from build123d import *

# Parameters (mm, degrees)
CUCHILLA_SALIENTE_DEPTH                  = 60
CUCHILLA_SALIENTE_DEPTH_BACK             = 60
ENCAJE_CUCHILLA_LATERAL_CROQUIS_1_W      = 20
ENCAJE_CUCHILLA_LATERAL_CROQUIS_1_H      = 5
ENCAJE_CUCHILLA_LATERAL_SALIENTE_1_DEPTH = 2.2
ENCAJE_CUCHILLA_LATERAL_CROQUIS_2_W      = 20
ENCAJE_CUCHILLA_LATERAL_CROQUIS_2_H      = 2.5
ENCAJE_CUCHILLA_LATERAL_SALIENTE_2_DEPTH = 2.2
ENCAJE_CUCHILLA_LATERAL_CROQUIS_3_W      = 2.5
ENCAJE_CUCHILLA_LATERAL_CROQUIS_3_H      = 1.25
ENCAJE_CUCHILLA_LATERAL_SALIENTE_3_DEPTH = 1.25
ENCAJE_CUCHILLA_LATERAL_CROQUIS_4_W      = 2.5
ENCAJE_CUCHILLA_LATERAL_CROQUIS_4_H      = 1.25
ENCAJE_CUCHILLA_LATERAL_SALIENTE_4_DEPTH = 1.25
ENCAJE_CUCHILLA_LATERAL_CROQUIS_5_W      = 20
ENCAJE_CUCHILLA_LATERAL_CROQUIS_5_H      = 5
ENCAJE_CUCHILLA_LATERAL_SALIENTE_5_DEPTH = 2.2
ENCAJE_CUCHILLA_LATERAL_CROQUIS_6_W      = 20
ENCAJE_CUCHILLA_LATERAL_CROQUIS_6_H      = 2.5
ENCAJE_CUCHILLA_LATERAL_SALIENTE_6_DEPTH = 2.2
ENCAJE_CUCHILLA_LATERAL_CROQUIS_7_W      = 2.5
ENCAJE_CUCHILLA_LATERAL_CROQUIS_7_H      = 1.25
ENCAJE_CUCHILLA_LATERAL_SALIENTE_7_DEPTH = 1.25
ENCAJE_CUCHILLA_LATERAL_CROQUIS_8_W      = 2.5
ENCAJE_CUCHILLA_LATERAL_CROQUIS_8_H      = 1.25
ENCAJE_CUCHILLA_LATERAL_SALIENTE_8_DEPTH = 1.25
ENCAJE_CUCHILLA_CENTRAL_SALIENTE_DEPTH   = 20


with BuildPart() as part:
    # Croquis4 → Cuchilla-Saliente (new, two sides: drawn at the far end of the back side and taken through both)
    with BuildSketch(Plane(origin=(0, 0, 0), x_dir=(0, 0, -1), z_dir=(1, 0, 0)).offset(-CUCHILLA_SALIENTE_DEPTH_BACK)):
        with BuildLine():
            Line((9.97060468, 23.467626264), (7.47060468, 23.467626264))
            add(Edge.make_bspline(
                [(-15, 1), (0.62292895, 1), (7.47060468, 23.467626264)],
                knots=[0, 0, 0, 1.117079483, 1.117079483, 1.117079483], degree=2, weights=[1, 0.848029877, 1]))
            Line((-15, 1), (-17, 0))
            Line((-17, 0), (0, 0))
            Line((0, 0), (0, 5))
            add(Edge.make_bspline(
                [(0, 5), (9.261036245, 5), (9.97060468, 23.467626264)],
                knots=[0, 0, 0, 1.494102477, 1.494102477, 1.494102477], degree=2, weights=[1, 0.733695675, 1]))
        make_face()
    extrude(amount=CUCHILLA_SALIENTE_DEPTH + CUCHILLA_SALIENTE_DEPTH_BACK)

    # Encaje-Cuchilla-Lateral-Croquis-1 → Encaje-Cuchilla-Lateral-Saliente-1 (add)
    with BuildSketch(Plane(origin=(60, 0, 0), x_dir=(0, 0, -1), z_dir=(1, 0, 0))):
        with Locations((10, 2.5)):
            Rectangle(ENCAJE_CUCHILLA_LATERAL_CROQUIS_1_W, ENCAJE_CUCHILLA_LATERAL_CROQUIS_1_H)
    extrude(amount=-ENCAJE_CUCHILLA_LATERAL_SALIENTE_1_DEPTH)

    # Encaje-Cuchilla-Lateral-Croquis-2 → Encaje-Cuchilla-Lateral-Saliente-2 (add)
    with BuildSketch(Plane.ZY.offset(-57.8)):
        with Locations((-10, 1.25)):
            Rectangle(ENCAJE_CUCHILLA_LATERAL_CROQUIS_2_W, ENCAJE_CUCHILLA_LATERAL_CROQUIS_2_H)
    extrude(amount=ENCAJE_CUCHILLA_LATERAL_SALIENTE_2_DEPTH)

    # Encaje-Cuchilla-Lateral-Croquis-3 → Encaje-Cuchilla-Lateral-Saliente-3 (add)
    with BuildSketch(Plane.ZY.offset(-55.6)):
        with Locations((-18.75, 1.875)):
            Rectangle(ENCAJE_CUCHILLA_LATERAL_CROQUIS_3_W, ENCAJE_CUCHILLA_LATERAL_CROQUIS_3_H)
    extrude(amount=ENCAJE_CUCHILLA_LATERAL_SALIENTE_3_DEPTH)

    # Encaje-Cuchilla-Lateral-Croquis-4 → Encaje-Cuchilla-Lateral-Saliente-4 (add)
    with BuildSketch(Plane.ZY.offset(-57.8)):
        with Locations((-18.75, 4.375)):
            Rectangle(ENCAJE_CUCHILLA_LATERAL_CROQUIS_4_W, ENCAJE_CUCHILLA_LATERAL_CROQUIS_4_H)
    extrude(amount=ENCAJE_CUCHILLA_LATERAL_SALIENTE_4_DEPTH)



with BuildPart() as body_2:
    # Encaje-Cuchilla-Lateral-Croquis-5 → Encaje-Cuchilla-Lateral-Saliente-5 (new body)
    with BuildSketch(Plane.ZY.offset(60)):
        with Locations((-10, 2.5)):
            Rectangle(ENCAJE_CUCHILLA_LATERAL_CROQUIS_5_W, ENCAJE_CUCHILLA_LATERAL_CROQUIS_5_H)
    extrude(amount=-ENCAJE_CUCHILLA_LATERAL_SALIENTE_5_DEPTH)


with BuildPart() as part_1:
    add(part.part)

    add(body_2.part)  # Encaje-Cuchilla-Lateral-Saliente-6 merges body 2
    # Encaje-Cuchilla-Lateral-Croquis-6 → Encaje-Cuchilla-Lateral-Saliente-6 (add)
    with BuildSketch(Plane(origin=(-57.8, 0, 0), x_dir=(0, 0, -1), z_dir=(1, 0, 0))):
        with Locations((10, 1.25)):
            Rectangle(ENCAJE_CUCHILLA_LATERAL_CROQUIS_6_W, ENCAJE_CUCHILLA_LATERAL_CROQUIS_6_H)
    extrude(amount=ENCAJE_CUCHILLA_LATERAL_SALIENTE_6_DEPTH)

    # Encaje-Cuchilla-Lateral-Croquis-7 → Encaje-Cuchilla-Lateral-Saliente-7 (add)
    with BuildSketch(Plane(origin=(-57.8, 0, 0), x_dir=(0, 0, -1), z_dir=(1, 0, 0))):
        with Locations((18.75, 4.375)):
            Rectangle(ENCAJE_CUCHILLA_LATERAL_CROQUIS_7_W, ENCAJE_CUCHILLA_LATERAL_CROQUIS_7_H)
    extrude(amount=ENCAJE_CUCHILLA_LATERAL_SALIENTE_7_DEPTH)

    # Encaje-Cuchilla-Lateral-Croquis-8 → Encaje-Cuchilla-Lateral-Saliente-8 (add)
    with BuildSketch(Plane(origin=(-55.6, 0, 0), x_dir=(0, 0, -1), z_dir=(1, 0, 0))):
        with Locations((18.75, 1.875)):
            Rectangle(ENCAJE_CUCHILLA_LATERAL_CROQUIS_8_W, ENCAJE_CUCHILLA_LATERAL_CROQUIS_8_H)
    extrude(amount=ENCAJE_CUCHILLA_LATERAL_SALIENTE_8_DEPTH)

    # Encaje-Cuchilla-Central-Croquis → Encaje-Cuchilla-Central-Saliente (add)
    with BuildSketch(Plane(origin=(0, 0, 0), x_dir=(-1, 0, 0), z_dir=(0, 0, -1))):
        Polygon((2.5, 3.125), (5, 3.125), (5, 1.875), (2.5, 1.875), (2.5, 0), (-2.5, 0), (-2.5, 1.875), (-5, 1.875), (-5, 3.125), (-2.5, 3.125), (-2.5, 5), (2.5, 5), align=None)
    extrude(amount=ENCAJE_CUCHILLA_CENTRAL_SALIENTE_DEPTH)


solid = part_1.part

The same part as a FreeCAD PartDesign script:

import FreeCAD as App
import Part
import Sketcher
from FreeCAD import Vector

doc = App.newDocument("Part")
body = doc.addObject("PartDesign::Body", "Body")

# Sketch on YZ plane
sketch1 = body.newObject("Sketcher::SketchObject", "Sketch")
sketch1.AttachmentSupport = (doc.getObject("YZ_Plane"), [""])
sketch1.MapMode = "FlatFace"
sketch1.addGeometry(Part.LineSegment(Vector(23.467626, -9.970605, 0), Vector(23.467626, -7.470605, 0)), False)
sketch1.addGeometry(Part.BSplineCurve([Vector(1, 15, 0), Vector(1, -0.622929, 0), Vector(23.467626, -7.470605, 0)], [3, 3], [0, 1.117079483], False, 2, [1, 0.848029877, 1], False), False)
sketch1.addGeometry(Part.LineSegment(Vector(1, 15, 0), Vector(0, 17, 0)), False)
sketch1.addGeometry(Part.LineSegment(Vector(0, 17, 0), Vector(0, 0, 0)), False)
sketch1.addGeometry(Part.LineSegment(Vector(0, 0, 0), Vector(5, 0, 0)), False)
sketch1.addGeometry(Part.BSplineCurve([Vector(5, 0, 0), Vector(5, -9.261036, 0), Vector(23.467626, -9.970605, 0)], [3, 3], [0, 1.494102477], False, 2, [1, 0.733695675, 1], False), False)
sketch1.addConstraint(Sketcher.Constraint("Block", 1))
sketch1.addConstraint(Sketcher.Constraint("Block", 5))
sketch1.addConstraint(Sketcher.Constraint("Coincident", 0, 2, 1, 2))
sketch1.addConstraint(Sketcher.Constraint("Coincident", 1, 1, 2, 1))
sketch1.addConstraint(Sketcher.Constraint("Coincident", 2, 2, 3, 1))
sketch1.addConstraint(Sketcher.Constraint("Coincident", 3, 2, 4, 1))
sketch1.addConstraint(Sketcher.Constraint("Coincident", 4, 2, 5, 1))
sketch1.addConstraint(Sketcher.Constraint("Coincident", 5, 2, 0, 1))
sketch1.addConstraint(Sketcher.Constraint("Vertical", 3))
sketch1.addConstraint(Sketcher.Constraint("Horizontal", 4))
sketch1.addConstraint(Sketcher.Constraint("PointOnObject", 2, 2, -2))
sketch1.addConstraint(Sketcher.Constraint("DistanceY", 3, 2, 3, 1, 17.0))
pad1 = body.newObject("PartDesign::Pad", "Pad")
pad1.Profile = sketch1
pad1.Type = "TwoLengths"
pad1.Length = 60
pad1.Length2 = 60

# Sketch on YZ plane
sketch2 = body.newObject("Sketcher::SketchObject", "Sketch001")
sketch2.AttachmentSupport = (doc.getObject("YZ_Plane"), [""])
sketch2.MapMode = "FlatFace"
sketch2.AttachmentOffset = App.Placement(Vector(0, 0, 60), App.Rotation())
sketch2.addGeometry(Part.LineSegment(Vector(5, 0, 0), Vector(0, 0, 0)), False)
sketch2.addGeometry(Part.LineSegment(Vector(0, 0, 0), Vector(0, -20, 0)), False)
sketch2.addGeometry(Part.LineSegment(Vector(0, -20, 0), Vector(5, -20, 0)), False)
sketch2.addGeometry(Part.LineSegment(Vector(5, -20, 0), Vector(5, 0, 0)), False)
sketch2.addConstraint(Sketcher.Constraint("Coincident", 0, 2, 1, 1))
sketch2.addConstraint(Sketcher.Constraint("Coincident", 1, 2, 2, 1))
sketch2.addConstraint(Sketcher.Constraint("Coincident", 2, 2, 3, 1))
sketch2.addConstraint(Sketcher.Constraint("Coincident", 3, 2, 0, 1))
sketch2.addConstraint(Sketcher.Constraint("Horizontal", 0))
sketch2.addConstraint(Sketcher.Constraint("Vertical", 1))
sketch2.addConstraint(Sketcher.Constraint("Horizontal", 2))
sketch2.addConstraint(Sketcher.Constraint("Vertical", 3))
sketch2.addConstraint(Sketcher.Constraint("Coincident", 0, 2, -1, 1))
sketch2.addConstraint(Sketcher.Constraint("DistanceX", 0, 2, 0, 1, 5.0))
sketch2.addConstraint(Sketcher.Constraint("DistanceY", 1, 2, 1, 1, 20.0))
pad2 = body.newObject("PartDesign::Pad", "Pad001")
pad2.Profile = sketch2
pad2.Length = 2.2
pad2.Reversed = True

# Sketch on YZ plane
sketch3 = body.newObject("Sketcher::SketchObject", "Sketch002")
sketch3.AttachmentSupport = (doc.getObject("YZ_Plane"), [""])
sketch3.MapMode = "FlatFace"
sketch3.AttachmentOffset = App.Placement(Vector(0, 0, 57.8), App.Rotation())
sketch3.addGeometry(Part.LineSegment(Vector(2.5, -20, 0), Vector(0, -20, 0)), False)
sketch3.addGeometry(Part.LineSegment(Vector(0, -20, 0), Vector(0, 0, 0)), False)
sketch3.addGeometry(Part.LineSegment(Vector(0, 0, 0), Vector(2.5, 0, 0)), False)
sketch3.addGeometry(Part.LineSegment(Vector(2.5, 0, 0), Vector(2.5, -20, 0)), False)
sketch3.addConstraint(Sketcher.Constraint("Coincident", 0, 2, 1, 1))
sketch3.addConstraint(Sketcher.Constraint("Coincident", 1, 2, 2, 1))
sketch3.addConstraint(Sketcher.Constraint("Coincident", 2, 2, 3, 1))
sketch3.addConstraint(Sketcher.Constraint("Coincident", 3, 2, 0, 1))
sketch3.addConstraint(Sketcher.Constraint("Horizontal", 0))
sketch3.addConstraint(Sketcher.Constraint("Vertical", 1))
sketch3.addConstraint(Sketcher.Constraint("Horizontal", 2))
sketch3.addConstraint(Sketcher.Constraint("Vertical", 3))
sketch3.addConstraint(Sketcher.Constraint("Coincident", 1, 2, -1, 1))
sketch3.addConstraint(Sketcher.Constraint("DistanceY", 1, 1, 1, 2, 20.0))
sketch3.addConstraint(Sketcher.Constraint("DistanceX", 0, 2, 0, 1, 2.5))
pad3 = body.newObject("PartDesign::Pad", "Pad002")
pad3.Profile = sketch3
pad3.Length = 2.2
pad3.Reversed = True

# Sketch on YZ plane
sketch4 = body.newObject("Sketcher::SketchObject", "Sketch003")
sketch4.AttachmentSupport = (doc.getObject("YZ_Plane"), [""])
sketch4.MapMode = "FlatFace"
sketch4.AttachmentOffset = App.Placement(Vector(0, 0, 55.6), App.Rotation())
sketch4.addGeometry(Part.LineSegment(Vector(2.5, -20, 0), Vector(1.2, -20, 0)), False)
sketch4.addGeometry(Part.LineSegment(Vector(1.2, -20, 0), Vector(1.2, -17.5, 0)), False)
sketch4.addGeometry(Part.LineSegment(Vector(1.2, -17.5, 0), Vector(2.5, -17.5, 0)), False)
sketch4.addGeometry(Part.LineSegment(Vector(2.5, -17.5, 0), Vector(2.5, -20, 0)), False)
sketch4.addConstraint(Sketcher.Constraint("Coincident", 0, 2, 1, 1))
sketch4.addConstraint(Sketcher.Constraint("Coincident", 1, 2, 2, 1))
sketch4.addConstraint(Sketcher.Constraint("Coincident", 2, 2, 3, 1))
sketch4.addConstraint(Sketcher.Constraint("Coincident", 3, 2, 0, 1))
sketch4.addConstraint(Sketcher.Constraint("Horizontal", 0))
sketch4.addConstraint(Sketcher.Constraint("Vertical", 1))
sketch4.addConstraint(Sketcher.Constraint("Horizontal", 2))
sketch4.addConstraint(Sketcher.Constraint("Vertical", 3))
sketch4.addConstraint(Sketcher.Constraint("DistanceY", 1, 1, 1, 2, 2.5))
sketch4.addConstraint(Sketcher.Constraint("DistanceY", 0, 2, -1, 1, 20.0))
sketch4.addConstraint(Sketcher.Constraint("DistanceX", 0, 2, 0, 1, 1.25))
sketch4.addConstraint(Sketcher.Constraint("DistanceX", -1, 1, 2, 2, 2.5))
pad4 = body.newObject("PartDesign::Pad", "Pad003")
pad4.Profile = sketch4
pad4.Length = 1.25
pad4.Reversed = True

# Sketch on YZ plane
sketch5 = body.newObject("Sketcher::SketchObject", "Sketch004")
sketch5.AttachmentSupport = (doc.getObject("YZ_Plane"), [""])
sketch5.MapMode = "FlatFace"
sketch5.AttachmentOffset = App.Placement(Vector(0, 0, 57.8), App.Rotation())
sketch5.addGeometry(Part.LineSegment(Vector(5, -20, 0), Vector(3.8, -20, 0)), False)
sketch5.addGeometry(Part.LineSegment(Vector(3.8, -20, 0), Vector(3.8, -17.5, 0)), False)
sketch5.addGeometry(Part.LineSegment(Vector(3.8, -17.5, 0), Vector(5, -17.5, 0)), False)
sketch5.addGeometry(Part.LineSegment(Vector(5, -17.5, 0), Vector(5, -20, 0)), False)
sketch5.addConstraint(Sketcher.Constraint("Coincident", 0, 2, 1, 1))
sketch5.addConstraint(Sketcher.Constraint("Coincident", 1, 2, 2, 1))
sketch5.addConstraint(Sketcher.Constraint("Coincident", 2, 2, 3, 1))
sketch5.addConstraint(Sketcher.Constraint("Coincident", 3, 2, 0, 1))
sketch5.addConstraint(Sketcher.Constraint("Horizontal", 0))
sketch5.addConstraint(Sketcher.Constraint("Vertical", 1))
sketch5.addConstraint(Sketcher.Constraint("Horizontal", 2))
sketch5.addConstraint(Sketcher.Constraint("Vertical", 3))
sketch5.addConstraint(Sketcher.Constraint("DistanceY", 1, 1, 1, 2, 2.5))
sketch5.addConstraint(Sketcher.Constraint("DistanceY", 0, 2, -1, 1, 20.0))
sketch5.addConstraint(Sketcher.Constraint("DistanceX", -1, 1, 2, 2, 5.0))
sketch5.addConstraint(Sketcher.Constraint("DistanceX", 0, 2, 0, 1, 1.25))
pad5 = body.newObject("PartDesign::Pad", "Pad004")
pad5.Profile = sketch5
pad5.Length = 1.25
pad5.Reversed = True
body2 = doc.addObject("PartDesign::Body", "Body001")

# Sketch on YZ plane
sketch6 = body2.newObject("Sketcher::SketchObject", "Sketch005")
sketch6.AttachmentSupport = (doc.getObject("YZ_Plane001"), [""])
sketch6.MapMode = "FlatFace"
sketch6.AttachmentOffset = App.Placement(Vector(0, 0, -60), App.Rotation())
sketch6.addGeometry(Part.LineSegment(Vector(5, -20, 0), Vector(0, -20, 0)), False)
sketch6.addGeometry(Part.LineSegment(Vector(0, -20, 0), Vector(0, 0, 0)), False)
sketch6.addGeometry(Part.LineSegment(Vector(0, 0, 0), Vector(5, 0, 0)), False)
sketch6.addGeometry(Part.LineSegment(Vector(5, 0, 0), Vector(5, -20, 0)), False)
sketch6.addConstraint(Sketcher.Constraint("Coincident", 0, 2, 1, 1))
sketch6.addConstraint(Sketcher.Constraint("Coincident", 1, 2, 2, 1))
sketch6.addConstraint(Sketcher.Constraint("Coincident", 2, 2, 3, 1))
sketch6.addConstraint(Sketcher.Constraint("Coincident", 3, 2, 0, 1))
sketch6.addConstraint(Sketcher.Constraint("Horizontal", 0))
sketch6.addConstraint(Sketcher.Constraint("Vertical", 1))
sketch6.addConstraint(Sketcher.Constraint("Horizontal", 2))
sketch6.addConstraint(Sketcher.Constraint("Vertical", 3))
sketch6.addConstraint(Sketcher.Constraint("Coincident", 1, 2, -1, 1))
sketch6.addConstraint(Sketcher.Constraint("DistanceX", 0, 2, 0, 1, 5.0))
sketch6.addConstraint(Sketcher.Constraint("DistanceY", 1, 1, 1, 2, 20.0))
pad6 = body2.newObject("PartDesign::Pad", "Pad005")
pad6.Profile = sketch6
pad6.Length = 2.2
doc.recompute()

boolean = body.newObject("PartDesign::Boolean", "Boolean")
boolean.Type = "Fuse"
boolean.addObjects([body2])

# Sketch on YZ plane
sketch7 = body.newObject("Sketcher::SketchObject", "Sketch006")
sketch7.AttachmentSupport = (doc.getObject("YZ_Plane"), [""])
sketch7.MapMode = "FlatFace"
sketch7.AttachmentOffset = App.Placement(Vector(0, 0, -57.8), App.Rotation())
sketch7.addGeometry(Part.LineSegment(Vector(2.5, 0, 0), Vector(0, 0, 0)), False)
sketch7.addGeometry(Part.LineSegment(Vector(0, 0, 0), Vector(0, -20, 0)), False)
sketch7.addGeometry(Part.LineSegment(Vector(0, -20, 0), Vector(2.5, -20, 0)), False)
sketch7.addGeometry(Part.LineSegment(Vector(2.5, -20, 0), Vector(2.5, 0, 0)), False)
sketch7.addConstraint(Sketcher.Constraint("Coincident", 0, 2, 1, 1))
sketch7.addConstraint(Sketcher.Constraint("Coincident", 1, 2, 2, 1))
sketch7.addConstraint(Sketcher.Constraint("Coincident", 2, 2, 3, 1))
sketch7.addConstraint(Sketcher.Constraint("Coincident", 3, 2, 0, 1))
sketch7.addConstraint(Sketcher.Constraint("Horizontal", 0))
sketch7.addConstraint(Sketcher.Constraint("Vertical", 1))
sketch7.addConstraint(Sketcher.Constraint("Horizontal", 2))
sketch7.addConstraint(Sketcher.Constraint("Vertical", 3))
sketch7.addConstraint(Sketcher.Constraint("Coincident", 0, 2, -1, 1))
sketch7.addConstraint(Sketcher.Constraint("DistanceY", 1, 2, 1, 1, 20.0))
sketch7.addConstraint(Sketcher.Constraint("DistanceX", 0, 2, 0, 1, 2.5))
pad7 = body.newObject("PartDesign::Pad", "Pad006")
pad7.Profile = sketch7
pad7.Length = 2.2

# Sketch on YZ plane
sketch8 = body.newObject("Sketcher::SketchObject", "Sketch007")
sketch8.AttachmentSupport = (doc.getObject("YZ_Plane"), [""])
sketch8.MapMode = "FlatFace"
sketch8.AttachmentOffset = App.Placement(Vector(0, 0, -57.8), App.Rotation())
sketch8.addGeometry(Part.LineSegment(Vector(5, -17.5, 0), Vector(3.8, -17.5, 0)), False)
sketch8.addGeometry(Part.LineSegment(Vector(3.8, -17.5, 0), Vector(3.8, -20, 0)), False)
sketch8.addGeometry(Part.LineSegment(Vector(3.8, -20, 0), Vector(5, -20, 0)), False)
sketch8.addGeometry(Part.LineSegment(Vector(5, -20, 0), Vector(5, -17.5, 0)), False)
sketch8.addConstraint(Sketcher.Constraint("Coincident", 0, 2, 1, 1))
sketch8.addConstraint(Sketcher.Constraint("Coincident", 1, 2, 2, 1))
sketch8.addConstraint(Sketcher.Constraint("Coincident", 2, 2, 3, 1))
sketch8.addConstraint(Sketcher.Constraint("Coincident", 3, 2, 0, 1))
sketch8.addConstraint(Sketcher.Constraint("Horizontal", 0))
sketch8.addConstraint(Sketcher.Constraint("Vertical", 1))
sketch8.addConstraint(Sketcher.Constraint("Horizontal", 2))
sketch8.addConstraint(Sketcher.Constraint("Vertical", 3))
sketch8.addConstraint(Sketcher.Constraint("DistanceY", 1, 2, 1, 1, 2.5))
sketch8.addConstraint(Sketcher.Constraint("DistanceY", 1, 2, -1, 1, 20.0))
sketch8.addConstraint(Sketcher.Constraint("DistanceX", -1, 1, 2, 2, 5.0))
sketch8.addConstraint(Sketcher.Constraint("DistanceX", 0, 2, 0, 1, 1.25))
pad8 = body.newObject("PartDesign::Pad", "Pad007")
pad8.Profile = sketch8
pad8.Length = 1.25

# Sketch on YZ plane
sketch9 = body.newObject("Sketcher::SketchObject", "Sketch008")
sketch9.AttachmentSupport = (doc.getObject("YZ_Plane"), [""])
sketch9.MapMode = "FlatFace"
sketch9.AttachmentOffset = App.Placement(Vector(0, 0, -55.6), App.Rotation())
sketch9.addGeometry(Part.LineSegment(Vector(2.5, -17.5, 0), Vector(1.2, -17.5, 0)), False)
sketch9.addGeometry(Part.LineSegment(Vector(1.2, -17.5, 0), Vector(1.2, -20, 0)), False)
sketch9.addGeometry(Part.LineSegment(Vector(1.2, -20, 0), Vector(2.5, -20, 0)), False)
sketch9.addGeometry(Part.LineSegment(Vector(2.5, -20, 0), Vector(2.5, -17.5, 0)), False)
sketch9.addConstraint(Sketcher.Constraint("Coincident", 0, 2, 1, 1))
sketch9.addConstraint(Sketcher.Constraint("Coincident", 1, 2, 2, 1))
sketch9.addConstraint(Sketcher.Constraint("Coincident", 2, 2, 3, 1))
sketch9.addConstraint(Sketcher.Constraint("Coincident", 3, 2, 0, 1))
sketch9.addConstraint(Sketcher.Constraint("Horizontal", 0))
sketch9.addConstraint(Sketcher.Constraint("Vertical", 1))
sketch9.addConstraint(Sketcher.Constraint("Horizontal", 2))
sketch9.addConstraint(Sketcher.Constraint("Vertical", 3))
sketch9.addConstraint(Sketcher.Constraint("DistanceY", 1, 2, 1, 1, 2.5))
sketch9.addConstraint(Sketcher.Constraint("DistanceY", 1, 2, -1, 1, 20.0))
sketch9.addConstraint(Sketcher.Constraint("DistanceX", 0, 2, 0, 1, 1.25))
sketch9.addConstraint(Sketcher.Constraint("DistanceX", -1, 1, 2, 2, 2.5))
pad9 = body.newObject("PartDesign::Pad", "Pad008")
pad9.Profile = sketch9
pad9.Length = 1.25

# Sketch on XY plane
sketch10 = body.newObject("Sketcher::SketchObject", "Sketch009")
sketch10.AttachmentSupport = (doc.getObject("XY_Plane"), [""])
sketch10.MapMode = "FlatFace"
sketch10.addGeometry(Part.LineSegment(Vector(-5, 3.1, 0), Vector(-2.5, 3.1, 0)), False)
sketch10.addGeometry(Part.LineSegment(Vector(-2.5, 3.1, 0), Vector(-2.5, 5, 0)), False)
sketch10.addGeometry(Part.LineSegment(Vector(-2.5, 5, 0), Vector(2.5, 5, 0)), False)
sketch10.addGeometry(Part.LineSegment(Vector(2.5, 5, 0), Vector(2.5, 3.1, 0)), False)
sketch10.addGeometry(Part.LineSegment(Vector(2.5, 3.1, 0), Vector(5, 3.1, 0)), False)
sketch10.addGeometry(Part.LineSegment(Vector(5, 3.1, 0), Vector(5, 1.9, 0)), False)
sketch10.addGeometry(Part.LineSegment(Vector(5, 1.9, 0), Vector(2.5, 1.9, 0)), False)
sketch10.addGeometry(Part.LineSegment(Vector(2.5, 1.9, 0), Vector(2.5, 0, 0)), False)
sketch10.addGeometry(Part.LineSegment(Vector(2.5, 0, 0), Vector(-2.5, 0, 0)), False)
sketch10.addGeometry(Part.LineSegment(Vector(-2.5, 0, 0), Vector(-2.5, 1.9, 0)), False)
sketch10.addGeometry(Part.LineSegment(Vector(-2.5, 1.9, 0), Vector(-5, 1.9, 0)), False)
sketch10.addGeometry(Part.LineSegment(Vector(-5, 1.9, 0), Vector(-5, 3.1, 0)), False)
sketch10.addConstraint(Sketcher.Constraint("Coincident", 0, 2, 1, 1))
sketch10.addConstraint(Sketcher.Constraint("Coincident", 1, 2, 2, 1))
sketch10.addConstraint(Sketcher.Constraint("Coincident", 2, 2, 3, 1))
sketch10.addConstraint(Sketcher.Constraint("Coincident", 3, 2, 4, 1))
sketch10.addConstraint(Sketcher.Constraint("Coincident", 4, 2, 5, 1))
sketch10.addConstraint(Sketcher.Constraint("Coincident", 5, 2, 6, 1))
sketch10.addConstraint(Sketcher.Constraint("Coincident", 6, 2, 7, 1))
sketch10.addConstraint(Sketcher.Constraint("Coincident", 7, 2, 8, 1))
sketch10.addConstraint(Sketcher.Constraint("Coincident", 8, 2, 9, 1))
sketch10.addConstraint(Sketcher.Constraint("Coincident", 9, 2, 10, 1))
sketch10.addConstraint(Sketcher.Constraint("Coincident", 10, 2, 11, 1))
sketch10.addConstraint(Sketcher.Constraint("Coincident", 11, 2, 0, 1))
sketch10.addConstraint(Sketcher.Constraint("Horizontal", 0))
sketch10.addConstraint(Sketcher.Constraint("Vertical", 1))
sketch10.addConstraint(Sketcher.Constraint("Horizontal", 2))
sketch10.addConstraint(Sketcher.Constraint("Vertical", 3))
sketch10.addConstraint(Sketcher.Constraint("Horizontal", 4))
sketch10.addConstraint(Sketcher.Constraint("Vertical", 5))
sketch10.addConstraint(Sketcher.Constraint("Horizontal", 6))
sketch10.addConstraint(Sketcher.Constraint("Vertical", 7))
sketch10.addConstraint(Sketcher.Constraint("Horizontal", 8))
sketch10.addConstraint(Sketcher.Constraint("Vertical", 9))
sketch10.addConstraint(Sketcher.Constraint("Horizontal", 10))
sketch10.addConstraint(Sketcher.Constraint("Vertical", 11))
sketch10.addConstraint(Sketcher.Constraint("Symmetric", 7, 2, 8, 2, -1, 1))
sketch10.addConstraint(Sketcher.Constraint("Symmetric", 0, 2, 3, 2, -2))
sketch10.addConstraint(Sketcher.Constraint("Symmetric", 5, 2, 10, 2, -2))
sketch10.addConstraint(Sketcher.Constraint("Vertical", 3, 2, 6, 2))
sketch10.addConstraint(Sketcher.Constraint("Equal", 3, 7))
sketch10.addConstraint(Sketcher.Constraint("DistanceX", 2, 1, 2, 2, 5.0))
sketch10.addConstraint(Sketcher.Constraint("DistanceX", 0, 1, 0, 2, 2.5))
sketch10.addConstraint(Sketcher.Constraint("DistanceY", -1, 1, 1, 2, 5.0))
sketch10.addConstraint(Sketcher.Constraint("DistanceY", 5, 2, 5, 1, 1.25))
pad10 = body.newObject("PartDesign::Pad", "Pad009")
pad10.Profile = sketch10
pad10.Length = 20
pad10.Reversed = True

doc.recompute()
